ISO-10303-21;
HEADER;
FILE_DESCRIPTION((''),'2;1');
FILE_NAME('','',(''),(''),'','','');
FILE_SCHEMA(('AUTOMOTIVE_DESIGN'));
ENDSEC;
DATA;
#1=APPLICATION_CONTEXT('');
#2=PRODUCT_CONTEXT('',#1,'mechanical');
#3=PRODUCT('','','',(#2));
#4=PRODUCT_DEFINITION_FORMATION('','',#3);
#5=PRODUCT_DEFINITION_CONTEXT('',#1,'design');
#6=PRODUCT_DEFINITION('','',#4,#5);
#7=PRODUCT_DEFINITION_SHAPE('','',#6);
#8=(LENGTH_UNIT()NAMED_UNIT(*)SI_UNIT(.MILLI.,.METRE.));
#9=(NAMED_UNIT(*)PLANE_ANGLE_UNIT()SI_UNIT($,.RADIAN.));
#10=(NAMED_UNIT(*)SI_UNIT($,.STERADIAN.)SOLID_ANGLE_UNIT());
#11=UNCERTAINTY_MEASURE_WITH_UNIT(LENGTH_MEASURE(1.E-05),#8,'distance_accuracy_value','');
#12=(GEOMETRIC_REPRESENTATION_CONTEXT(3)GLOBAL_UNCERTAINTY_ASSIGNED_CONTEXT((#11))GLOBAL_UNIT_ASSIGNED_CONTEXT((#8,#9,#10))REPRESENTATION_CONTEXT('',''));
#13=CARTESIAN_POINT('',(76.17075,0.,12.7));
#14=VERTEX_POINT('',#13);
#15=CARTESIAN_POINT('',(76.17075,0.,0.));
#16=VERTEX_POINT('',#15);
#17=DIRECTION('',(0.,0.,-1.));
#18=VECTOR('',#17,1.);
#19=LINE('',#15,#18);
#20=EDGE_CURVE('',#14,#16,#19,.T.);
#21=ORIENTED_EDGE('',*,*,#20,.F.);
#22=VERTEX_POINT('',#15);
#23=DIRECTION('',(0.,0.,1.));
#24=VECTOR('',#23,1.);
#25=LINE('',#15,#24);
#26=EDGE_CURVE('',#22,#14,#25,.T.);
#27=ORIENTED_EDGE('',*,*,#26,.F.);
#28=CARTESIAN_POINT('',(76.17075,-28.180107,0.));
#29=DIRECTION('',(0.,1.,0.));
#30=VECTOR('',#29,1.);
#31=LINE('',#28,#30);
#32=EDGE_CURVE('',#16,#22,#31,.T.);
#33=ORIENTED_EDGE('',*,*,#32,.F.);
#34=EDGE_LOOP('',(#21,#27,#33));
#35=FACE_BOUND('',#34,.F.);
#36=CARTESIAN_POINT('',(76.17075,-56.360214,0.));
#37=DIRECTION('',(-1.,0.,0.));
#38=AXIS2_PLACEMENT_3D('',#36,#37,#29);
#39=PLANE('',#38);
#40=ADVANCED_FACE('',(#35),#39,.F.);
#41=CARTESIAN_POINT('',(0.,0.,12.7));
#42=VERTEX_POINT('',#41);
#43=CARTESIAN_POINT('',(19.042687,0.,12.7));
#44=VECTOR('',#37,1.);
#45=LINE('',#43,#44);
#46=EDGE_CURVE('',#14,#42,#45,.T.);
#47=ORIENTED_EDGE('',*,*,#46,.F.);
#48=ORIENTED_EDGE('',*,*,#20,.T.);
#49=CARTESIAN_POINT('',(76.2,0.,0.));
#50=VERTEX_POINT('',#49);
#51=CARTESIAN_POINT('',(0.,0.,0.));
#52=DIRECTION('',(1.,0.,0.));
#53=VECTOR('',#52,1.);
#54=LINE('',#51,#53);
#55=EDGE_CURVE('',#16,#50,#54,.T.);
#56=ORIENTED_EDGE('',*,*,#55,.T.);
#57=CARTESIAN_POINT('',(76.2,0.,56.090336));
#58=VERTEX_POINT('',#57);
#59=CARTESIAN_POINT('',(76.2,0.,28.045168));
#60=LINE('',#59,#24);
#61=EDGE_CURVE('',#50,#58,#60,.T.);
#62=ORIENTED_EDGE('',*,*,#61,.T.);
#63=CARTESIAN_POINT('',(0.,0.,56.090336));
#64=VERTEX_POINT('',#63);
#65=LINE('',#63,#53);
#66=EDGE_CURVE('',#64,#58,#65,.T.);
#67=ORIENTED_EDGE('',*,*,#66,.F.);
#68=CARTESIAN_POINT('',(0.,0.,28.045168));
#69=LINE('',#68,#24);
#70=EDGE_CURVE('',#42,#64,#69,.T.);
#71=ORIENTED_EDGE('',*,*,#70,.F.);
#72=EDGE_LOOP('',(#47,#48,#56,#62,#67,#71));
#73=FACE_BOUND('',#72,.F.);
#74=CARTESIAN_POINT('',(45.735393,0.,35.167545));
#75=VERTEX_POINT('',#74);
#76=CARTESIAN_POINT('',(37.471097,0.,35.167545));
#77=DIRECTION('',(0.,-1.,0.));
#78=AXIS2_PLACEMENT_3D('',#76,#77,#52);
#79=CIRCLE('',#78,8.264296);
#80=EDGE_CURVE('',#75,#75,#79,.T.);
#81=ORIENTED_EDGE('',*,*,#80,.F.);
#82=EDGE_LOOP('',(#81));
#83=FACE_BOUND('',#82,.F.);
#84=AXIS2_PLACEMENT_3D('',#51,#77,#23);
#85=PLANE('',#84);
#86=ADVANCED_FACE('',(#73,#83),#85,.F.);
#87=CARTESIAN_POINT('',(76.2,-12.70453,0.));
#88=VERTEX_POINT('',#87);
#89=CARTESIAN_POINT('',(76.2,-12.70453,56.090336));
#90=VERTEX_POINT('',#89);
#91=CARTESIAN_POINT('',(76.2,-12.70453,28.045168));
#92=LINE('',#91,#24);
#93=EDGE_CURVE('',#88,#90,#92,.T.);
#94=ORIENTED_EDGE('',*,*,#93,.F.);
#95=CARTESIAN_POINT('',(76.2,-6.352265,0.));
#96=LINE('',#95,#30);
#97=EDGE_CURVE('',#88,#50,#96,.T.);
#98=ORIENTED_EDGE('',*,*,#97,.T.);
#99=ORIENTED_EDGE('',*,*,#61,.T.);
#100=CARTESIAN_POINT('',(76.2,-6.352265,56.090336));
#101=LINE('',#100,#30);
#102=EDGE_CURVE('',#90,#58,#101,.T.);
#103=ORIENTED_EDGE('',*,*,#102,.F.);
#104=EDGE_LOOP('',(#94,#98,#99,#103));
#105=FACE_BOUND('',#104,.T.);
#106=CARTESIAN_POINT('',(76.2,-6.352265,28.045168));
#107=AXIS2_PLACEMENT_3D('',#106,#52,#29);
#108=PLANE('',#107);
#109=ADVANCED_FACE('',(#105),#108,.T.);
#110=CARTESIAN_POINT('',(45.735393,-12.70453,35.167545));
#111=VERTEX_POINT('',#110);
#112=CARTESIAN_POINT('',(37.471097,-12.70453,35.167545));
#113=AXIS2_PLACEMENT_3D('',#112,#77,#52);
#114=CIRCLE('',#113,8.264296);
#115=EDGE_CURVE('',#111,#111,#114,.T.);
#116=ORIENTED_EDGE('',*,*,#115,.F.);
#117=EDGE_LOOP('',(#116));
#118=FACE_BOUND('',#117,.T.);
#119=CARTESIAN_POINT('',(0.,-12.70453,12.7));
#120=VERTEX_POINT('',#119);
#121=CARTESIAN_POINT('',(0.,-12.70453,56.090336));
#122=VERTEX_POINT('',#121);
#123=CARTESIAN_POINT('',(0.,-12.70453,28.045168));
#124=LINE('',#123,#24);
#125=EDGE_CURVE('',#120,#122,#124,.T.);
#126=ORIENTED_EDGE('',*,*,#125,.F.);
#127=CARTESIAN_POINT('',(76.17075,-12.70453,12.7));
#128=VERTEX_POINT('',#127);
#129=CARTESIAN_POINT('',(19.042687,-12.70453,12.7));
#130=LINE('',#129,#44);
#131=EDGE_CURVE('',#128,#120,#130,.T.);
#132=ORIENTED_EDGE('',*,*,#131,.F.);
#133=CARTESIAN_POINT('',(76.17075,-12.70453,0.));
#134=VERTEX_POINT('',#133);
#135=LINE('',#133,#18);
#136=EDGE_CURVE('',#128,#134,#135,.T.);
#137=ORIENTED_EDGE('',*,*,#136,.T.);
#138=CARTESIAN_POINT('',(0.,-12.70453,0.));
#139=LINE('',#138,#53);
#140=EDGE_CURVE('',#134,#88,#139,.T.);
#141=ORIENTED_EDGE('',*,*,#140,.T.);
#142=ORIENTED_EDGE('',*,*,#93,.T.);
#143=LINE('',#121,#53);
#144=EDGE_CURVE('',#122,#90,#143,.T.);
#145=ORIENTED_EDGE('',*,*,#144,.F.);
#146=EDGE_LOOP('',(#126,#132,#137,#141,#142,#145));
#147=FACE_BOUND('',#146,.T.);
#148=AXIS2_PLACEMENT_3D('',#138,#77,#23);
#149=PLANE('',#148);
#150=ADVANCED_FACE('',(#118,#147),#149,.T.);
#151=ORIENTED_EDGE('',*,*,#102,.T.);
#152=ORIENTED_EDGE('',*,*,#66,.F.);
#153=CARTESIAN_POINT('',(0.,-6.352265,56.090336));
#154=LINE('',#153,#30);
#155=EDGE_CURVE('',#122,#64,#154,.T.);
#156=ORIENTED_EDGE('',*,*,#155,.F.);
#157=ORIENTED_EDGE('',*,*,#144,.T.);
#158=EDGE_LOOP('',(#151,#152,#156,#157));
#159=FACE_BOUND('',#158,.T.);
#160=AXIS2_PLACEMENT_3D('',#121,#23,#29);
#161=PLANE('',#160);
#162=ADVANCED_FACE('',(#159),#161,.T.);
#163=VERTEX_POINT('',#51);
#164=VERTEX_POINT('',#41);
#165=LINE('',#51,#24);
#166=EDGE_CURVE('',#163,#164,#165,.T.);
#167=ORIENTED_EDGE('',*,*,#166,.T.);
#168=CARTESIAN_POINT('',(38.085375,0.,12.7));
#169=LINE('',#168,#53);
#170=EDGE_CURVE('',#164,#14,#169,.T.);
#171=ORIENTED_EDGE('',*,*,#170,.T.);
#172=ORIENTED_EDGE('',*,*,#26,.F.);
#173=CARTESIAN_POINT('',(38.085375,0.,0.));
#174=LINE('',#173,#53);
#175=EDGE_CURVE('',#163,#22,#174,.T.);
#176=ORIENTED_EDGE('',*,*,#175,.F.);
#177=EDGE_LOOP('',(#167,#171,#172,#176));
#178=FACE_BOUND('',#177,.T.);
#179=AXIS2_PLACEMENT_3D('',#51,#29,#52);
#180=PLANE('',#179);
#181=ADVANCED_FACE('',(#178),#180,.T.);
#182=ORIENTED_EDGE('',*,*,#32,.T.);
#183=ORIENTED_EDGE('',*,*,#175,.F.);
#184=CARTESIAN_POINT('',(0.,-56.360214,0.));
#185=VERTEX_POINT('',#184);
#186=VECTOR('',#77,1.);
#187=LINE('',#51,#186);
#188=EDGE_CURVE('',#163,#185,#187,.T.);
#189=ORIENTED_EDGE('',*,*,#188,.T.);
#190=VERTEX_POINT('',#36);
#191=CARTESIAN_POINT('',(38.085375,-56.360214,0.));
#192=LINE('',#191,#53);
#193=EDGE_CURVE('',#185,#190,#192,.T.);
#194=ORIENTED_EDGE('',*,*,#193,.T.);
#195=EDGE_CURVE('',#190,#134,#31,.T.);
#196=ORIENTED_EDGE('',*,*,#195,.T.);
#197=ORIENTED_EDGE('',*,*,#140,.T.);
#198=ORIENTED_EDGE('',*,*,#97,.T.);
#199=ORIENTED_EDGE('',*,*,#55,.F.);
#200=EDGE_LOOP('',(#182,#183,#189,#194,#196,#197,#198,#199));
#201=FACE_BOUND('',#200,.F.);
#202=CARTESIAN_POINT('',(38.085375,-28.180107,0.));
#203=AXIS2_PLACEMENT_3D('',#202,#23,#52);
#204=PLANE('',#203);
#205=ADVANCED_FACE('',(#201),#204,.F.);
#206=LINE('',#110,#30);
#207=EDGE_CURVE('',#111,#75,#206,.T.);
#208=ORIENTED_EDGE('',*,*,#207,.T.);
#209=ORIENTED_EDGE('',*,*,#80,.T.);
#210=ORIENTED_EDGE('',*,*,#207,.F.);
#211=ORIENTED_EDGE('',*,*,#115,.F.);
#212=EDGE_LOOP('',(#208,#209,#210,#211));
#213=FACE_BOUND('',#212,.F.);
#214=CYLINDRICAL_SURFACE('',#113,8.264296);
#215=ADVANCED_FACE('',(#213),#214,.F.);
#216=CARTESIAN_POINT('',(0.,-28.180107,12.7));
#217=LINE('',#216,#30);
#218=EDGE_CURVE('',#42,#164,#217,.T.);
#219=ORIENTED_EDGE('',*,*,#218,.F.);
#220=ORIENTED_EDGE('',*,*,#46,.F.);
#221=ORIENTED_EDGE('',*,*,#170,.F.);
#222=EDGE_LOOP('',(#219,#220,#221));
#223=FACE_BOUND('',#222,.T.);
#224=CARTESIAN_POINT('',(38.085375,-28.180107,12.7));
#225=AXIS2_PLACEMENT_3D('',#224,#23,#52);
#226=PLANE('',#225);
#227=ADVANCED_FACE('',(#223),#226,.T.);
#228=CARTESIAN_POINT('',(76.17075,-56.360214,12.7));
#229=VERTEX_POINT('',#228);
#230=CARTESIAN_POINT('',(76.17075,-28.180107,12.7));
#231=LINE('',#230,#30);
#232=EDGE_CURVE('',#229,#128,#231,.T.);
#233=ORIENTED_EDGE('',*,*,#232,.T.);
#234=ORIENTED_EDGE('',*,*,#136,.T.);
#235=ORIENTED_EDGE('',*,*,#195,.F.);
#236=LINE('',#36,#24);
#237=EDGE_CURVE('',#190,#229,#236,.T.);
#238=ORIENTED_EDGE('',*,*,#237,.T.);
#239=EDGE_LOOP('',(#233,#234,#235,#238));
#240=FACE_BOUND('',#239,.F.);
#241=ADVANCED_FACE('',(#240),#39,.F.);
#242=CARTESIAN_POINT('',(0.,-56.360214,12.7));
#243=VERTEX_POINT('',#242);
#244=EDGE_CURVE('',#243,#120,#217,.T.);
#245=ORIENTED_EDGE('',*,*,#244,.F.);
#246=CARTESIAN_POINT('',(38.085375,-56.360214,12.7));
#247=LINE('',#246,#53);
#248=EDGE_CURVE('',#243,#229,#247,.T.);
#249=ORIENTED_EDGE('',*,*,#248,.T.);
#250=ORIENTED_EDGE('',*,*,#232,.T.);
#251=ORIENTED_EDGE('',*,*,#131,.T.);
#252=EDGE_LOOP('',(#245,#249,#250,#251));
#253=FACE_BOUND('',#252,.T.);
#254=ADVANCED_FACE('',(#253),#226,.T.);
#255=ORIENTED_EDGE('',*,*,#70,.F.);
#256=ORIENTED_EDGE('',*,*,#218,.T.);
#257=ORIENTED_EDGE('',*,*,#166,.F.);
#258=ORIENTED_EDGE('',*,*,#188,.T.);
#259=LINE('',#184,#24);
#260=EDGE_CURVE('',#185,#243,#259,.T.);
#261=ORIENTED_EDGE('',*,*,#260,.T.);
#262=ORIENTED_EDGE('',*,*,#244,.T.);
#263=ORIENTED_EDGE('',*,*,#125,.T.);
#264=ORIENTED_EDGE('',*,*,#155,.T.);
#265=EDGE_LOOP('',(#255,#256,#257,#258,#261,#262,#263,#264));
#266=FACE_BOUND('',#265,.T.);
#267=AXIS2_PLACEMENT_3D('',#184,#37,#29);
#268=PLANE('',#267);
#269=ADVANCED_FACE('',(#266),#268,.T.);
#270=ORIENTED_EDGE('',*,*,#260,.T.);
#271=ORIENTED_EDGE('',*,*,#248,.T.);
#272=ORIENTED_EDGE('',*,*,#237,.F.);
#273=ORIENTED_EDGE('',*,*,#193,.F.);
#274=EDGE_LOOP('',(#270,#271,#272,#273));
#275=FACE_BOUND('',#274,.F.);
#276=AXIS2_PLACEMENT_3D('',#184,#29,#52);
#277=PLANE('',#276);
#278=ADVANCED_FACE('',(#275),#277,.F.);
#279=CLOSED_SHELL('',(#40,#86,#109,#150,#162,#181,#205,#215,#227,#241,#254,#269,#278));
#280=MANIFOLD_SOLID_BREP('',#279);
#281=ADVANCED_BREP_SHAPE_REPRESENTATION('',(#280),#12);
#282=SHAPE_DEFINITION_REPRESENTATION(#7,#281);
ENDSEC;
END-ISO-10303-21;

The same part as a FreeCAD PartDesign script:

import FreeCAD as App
import Part
import Sketcher
from FreeCAD import Vector
Q = App.Units.Quantity

doc = App.newDocument("Part")
body = doc.addObject("PartDesign::Body", "Body")

sketch1 = body.newObject("Sketcher::SketchObject", "Sketch")
sketch1.AttachmentSupport = (doc.getObject("YZ_Plane"), [""])
sketch1.MapMode = "FlatFace"
sketch1.addGeometry([
    Part.LineSegment(Vector(-13, 56, 0), Vector(-13, 0, 0)),
    Part.LineSegment(Vector(-13, 0, 0), Vector(0, 0, 0)),
    Part.LineSegment(Vector(0, 0, 0), Vector(0, 56, 0)),
    Part.LineSegment(Vector(0, 56, 0), Vector(-13, 56, 0)),
], False)
sketch1.addConstraint([
    Sketcher.Constraint("Coincident", 0, 2, 1, 1),
    Sketcher.Constraint("Coincident", 1, 2, 2, 1),
    Sketcher.Constraint("Coincident", 2, 2, 3, 1),
    Sketcher.Constraint("Coincident", 3, 2, 0, 1),
    Sketcher.Constraint("Vertical", 0),
    Sketcher.Constraint("Horizontal", 1),
    Sketcher.Constraint("Vertical", 2),
    Sketcher.Constraint("Horizontal", 3),
    Sketcher.Constraint("Coincident", 1, 2, -1, 1),
    Sketcher.Constraint("DistanceX", 1, 1, 1, 2, Q("12.70453 mm")),
    Sketcher.Constraint("DistanceY", 0, 2, 0, 1, Q("56.090336 mm")),
])
pad1 = body.newObject("PartDesign::Pad", "Pad")
pad1.Profile = sketch1
pad1.Length = Q("3 in")

sketch2 = body.newObject("Sketcher::SketchObject", "Sketch001")
sketch2.AttachmentSupport = (doc.getObject("XY_Plane"), [""])
sketch2.MapMode = "FlatFace"
sketch2.addGeometry([
    Part.LineSegment(Vector(0, 0, 0), Vector(0, -56, 0)),
    Part.LineSegment(Vector(0, -56, 0), Vector(76, -56, 0)),
    Part.LineSegment(Vector(76, -56, 0), Vector(76, 0, 0)),
    Part.LineSegment(Vector(76, 0, 0), Vector(0, 0, 0)),
], False)
sketch2.addConstraint([
    Sketcher.Constraint("Coincident", 0, 2, 1, 1),
    Sketcher.Constraint("Coincident", 1, 2, 2, 1),
    Sketcher.Constraint("Coincident", 2, 2, 3, 1),
    Sketcher.Constraint("Coincident", 3, 2, 0, 1),
    Sketcher.Constraint("Vertical", 0),
    Sketcher.Constraint("Horizontal", 1),
    Sketcher.Constraint("Vertical", 2),
    Sketcher.Constraint("Horizontal", 3),
    Sketcher.Constraint("Coincident", 3, 2, -1, 1),
    Sketcher.Constraint("DistanceX", 1, 1, 1, 2, Q("76.17075 mm")),
    Sketcher.Constraint("DistanceY", 0, 2, 0, 1, Q("56.360215 mm")),
])
pad2 = body.newObject("PartDesign::Pad", "Pad001")
pad2.Profile = sketch2
pad2.Length = Q("0.5 in")

sketch3 = body.newObject("Sketcher::SketchObject", "Sketch002")
sketch3.AttachmentSupport = (doc.getObject("XZ_Plane"), [""])
sketch3.MapMode = "FlatFace"
sketch3.AttachmentOffset = App.Placement(Vector(0, 0, 12.70453), App.Rotation())
sketch3.addGeometry(Part.Circle(Vector(37, 35, 0), Vector(0, 0, 1), 8), False)
sketch3.addConstraint([
    Sketcher.Constraint("Diameter", 0, Q("16.528592 mm")),
    Sketcher.Constraint("DistanceX", -1, 1, 0, 3, Q("37.471097 mm")),
    Sketcher.Constraint("DistanceY", -1, 1, 0, 3, Q("35.167545 mm")),
])
pocket1 = body.newObject("PartDesign::Pocket", "Pocket")
pocket1.Profile = sketch3
pocket1.Length = Q("1 in")

doc.recompute()
